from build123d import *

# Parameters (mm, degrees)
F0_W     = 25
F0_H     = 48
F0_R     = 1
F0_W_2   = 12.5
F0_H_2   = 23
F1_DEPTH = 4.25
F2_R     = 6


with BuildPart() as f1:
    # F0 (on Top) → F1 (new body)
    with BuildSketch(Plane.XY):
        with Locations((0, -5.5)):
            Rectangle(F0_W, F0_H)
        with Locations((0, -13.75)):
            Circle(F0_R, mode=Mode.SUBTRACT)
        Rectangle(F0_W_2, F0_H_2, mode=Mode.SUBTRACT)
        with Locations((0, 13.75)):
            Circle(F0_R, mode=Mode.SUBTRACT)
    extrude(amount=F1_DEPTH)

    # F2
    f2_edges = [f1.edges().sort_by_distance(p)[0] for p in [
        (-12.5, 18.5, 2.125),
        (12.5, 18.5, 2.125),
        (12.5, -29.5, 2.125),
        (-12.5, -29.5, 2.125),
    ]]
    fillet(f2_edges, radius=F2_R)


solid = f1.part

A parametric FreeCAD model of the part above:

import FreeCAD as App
import Part
import Sketcher
from FreeCAD import Vector
Q = App.Units.Quantity


def edges_at(feature, points):
    """Names of the edges that pass closest to the given points."""
    edges = feature.Shape.Edges
    near = lambda p: min(range(len(edges)), key=lambda i: edges[i].distToShape(Part.Vertex(*p))[0])
    return sorted({f"Edge{near(p) + 1}" for p in points})


def add_polygon(sketch, points):
    """Adds a closed chain of lines whose ends are joined by coincident constraints."""
    first, n = sketch.GeometryCount, len(points)
    for a, b in zip(points, points[1:] + points[:1]):
        sketch.addGeometry(Part.LineSegment(App.Vector(*a, 0), App.Vector(*b, 0)), False)
    for i in range(n):
        sketch.addConstraint(Sketcher.Constraint("Coincident", first + i, 2, first + (i + 1) % n, 1))

doc = App.newDocument("Part")
body = doc.addObject("PartDesign::Body", "Body")

# Sketch on XY plane
sketch1 = doc.addObject("Sketcher::SketchObject", "Sketch")
body.addObject(sketch1)
sketch1.AttachmentSupport = (doc.XY_Plane, [""])
sketch1.MapMode = "FlatFace"
add_polygon(sketch1, [(-12.5, 18.5), (-12.5, -29.5), (12.5, -29.5), (12.5, 18.5)])  # lines 0-3
sketch1.addGeometry(Part.Circle(Vector(0, -13.8, 0), Vector(0, 0, 1), 1), False)  # 4
add_polygon(sketch1, [(6.2, -11.5), (-6.2, -11.5), (-6.2, 11.5), (6.2, 11.5)])  # lines 5-8
sketch1.addGeometry(Part.Circle(Vector(0, 13.8, 0), Vector(0, 0, 1), 1), False)  # 9
sketch1.addConstraint([
    Sketcher.Constraint("Vertical", 0),
    Sketcher.Constraint("Horizontal", 1),
    Sketcher.Constraint("Vertical", 2),
    Sketcher.Constraint("Horizontal", 3),
    Sketcher.Constraint("Horizontal", 5),
    Sketcher.Constraint("Vertical", 6),
    Sketcher.Constraint("Horizontal", 7),
    Sketcher.Constraint("Vertical", 8),
    Sketcher.Constraint("Equal", 4, 9),
    Sketcher.Constraint("Symmetric", 4, 3, 9, 3, -1, 1),
    Sketcher.Constraint("Symmetric", 5, 2, 7, 2, -1, 1),
    Sketcher.Constraint("PointOnObject", 4, 3, -2),
    Sketcher.Constraint("Diameter", 4, Q("2 mm")),
    Sketcher.Constraint("DistanceX", 1, 1, 1, 2, Q("25 mm")),
    Sketcher.Constraint("DistanceY", 0, 2, 0, 1, Q("48 mm")),
    Sketcher.Constraint("DistanceY", 6, 1, 6, 2, Q("23 mm")),
    Sketcher.Constraint("DistanceX", 5, 2, 5, 1, Q("12.5 mm")),
    Sketcher.Constraint("DistanceY", 0, 2, 5, 2, Q("18 mm")),
    Sketcher.Constraint("DistanceX", 0, 2, -1, 1, Q("12.5 mm")),
    Sketcher.Constraint("DistanceY", 4, 3, 9, 3, Q("27.5 mm")),
])
pad1 = doc.addObject("PartDesign::Pad", "Pad")
body.addObject(pad1)
pad1.Profile = sketch1
pad1.Length = 4.25
doc.recompute()

fillet = doc.addObject("PartDesign::Fillet", "Fillet")
body.addObject(fillet)
fillet.Base = (pad1, edges_at(pad1, [
    (-12.5, 18.5, 2.125),
    (12.5, 18.5, 2.125),
    (12.5, -29.5, 2.125),
    (-12.5, -29.5, 2.125),
]))
fillet.Radius = 6

doc.recompute()
